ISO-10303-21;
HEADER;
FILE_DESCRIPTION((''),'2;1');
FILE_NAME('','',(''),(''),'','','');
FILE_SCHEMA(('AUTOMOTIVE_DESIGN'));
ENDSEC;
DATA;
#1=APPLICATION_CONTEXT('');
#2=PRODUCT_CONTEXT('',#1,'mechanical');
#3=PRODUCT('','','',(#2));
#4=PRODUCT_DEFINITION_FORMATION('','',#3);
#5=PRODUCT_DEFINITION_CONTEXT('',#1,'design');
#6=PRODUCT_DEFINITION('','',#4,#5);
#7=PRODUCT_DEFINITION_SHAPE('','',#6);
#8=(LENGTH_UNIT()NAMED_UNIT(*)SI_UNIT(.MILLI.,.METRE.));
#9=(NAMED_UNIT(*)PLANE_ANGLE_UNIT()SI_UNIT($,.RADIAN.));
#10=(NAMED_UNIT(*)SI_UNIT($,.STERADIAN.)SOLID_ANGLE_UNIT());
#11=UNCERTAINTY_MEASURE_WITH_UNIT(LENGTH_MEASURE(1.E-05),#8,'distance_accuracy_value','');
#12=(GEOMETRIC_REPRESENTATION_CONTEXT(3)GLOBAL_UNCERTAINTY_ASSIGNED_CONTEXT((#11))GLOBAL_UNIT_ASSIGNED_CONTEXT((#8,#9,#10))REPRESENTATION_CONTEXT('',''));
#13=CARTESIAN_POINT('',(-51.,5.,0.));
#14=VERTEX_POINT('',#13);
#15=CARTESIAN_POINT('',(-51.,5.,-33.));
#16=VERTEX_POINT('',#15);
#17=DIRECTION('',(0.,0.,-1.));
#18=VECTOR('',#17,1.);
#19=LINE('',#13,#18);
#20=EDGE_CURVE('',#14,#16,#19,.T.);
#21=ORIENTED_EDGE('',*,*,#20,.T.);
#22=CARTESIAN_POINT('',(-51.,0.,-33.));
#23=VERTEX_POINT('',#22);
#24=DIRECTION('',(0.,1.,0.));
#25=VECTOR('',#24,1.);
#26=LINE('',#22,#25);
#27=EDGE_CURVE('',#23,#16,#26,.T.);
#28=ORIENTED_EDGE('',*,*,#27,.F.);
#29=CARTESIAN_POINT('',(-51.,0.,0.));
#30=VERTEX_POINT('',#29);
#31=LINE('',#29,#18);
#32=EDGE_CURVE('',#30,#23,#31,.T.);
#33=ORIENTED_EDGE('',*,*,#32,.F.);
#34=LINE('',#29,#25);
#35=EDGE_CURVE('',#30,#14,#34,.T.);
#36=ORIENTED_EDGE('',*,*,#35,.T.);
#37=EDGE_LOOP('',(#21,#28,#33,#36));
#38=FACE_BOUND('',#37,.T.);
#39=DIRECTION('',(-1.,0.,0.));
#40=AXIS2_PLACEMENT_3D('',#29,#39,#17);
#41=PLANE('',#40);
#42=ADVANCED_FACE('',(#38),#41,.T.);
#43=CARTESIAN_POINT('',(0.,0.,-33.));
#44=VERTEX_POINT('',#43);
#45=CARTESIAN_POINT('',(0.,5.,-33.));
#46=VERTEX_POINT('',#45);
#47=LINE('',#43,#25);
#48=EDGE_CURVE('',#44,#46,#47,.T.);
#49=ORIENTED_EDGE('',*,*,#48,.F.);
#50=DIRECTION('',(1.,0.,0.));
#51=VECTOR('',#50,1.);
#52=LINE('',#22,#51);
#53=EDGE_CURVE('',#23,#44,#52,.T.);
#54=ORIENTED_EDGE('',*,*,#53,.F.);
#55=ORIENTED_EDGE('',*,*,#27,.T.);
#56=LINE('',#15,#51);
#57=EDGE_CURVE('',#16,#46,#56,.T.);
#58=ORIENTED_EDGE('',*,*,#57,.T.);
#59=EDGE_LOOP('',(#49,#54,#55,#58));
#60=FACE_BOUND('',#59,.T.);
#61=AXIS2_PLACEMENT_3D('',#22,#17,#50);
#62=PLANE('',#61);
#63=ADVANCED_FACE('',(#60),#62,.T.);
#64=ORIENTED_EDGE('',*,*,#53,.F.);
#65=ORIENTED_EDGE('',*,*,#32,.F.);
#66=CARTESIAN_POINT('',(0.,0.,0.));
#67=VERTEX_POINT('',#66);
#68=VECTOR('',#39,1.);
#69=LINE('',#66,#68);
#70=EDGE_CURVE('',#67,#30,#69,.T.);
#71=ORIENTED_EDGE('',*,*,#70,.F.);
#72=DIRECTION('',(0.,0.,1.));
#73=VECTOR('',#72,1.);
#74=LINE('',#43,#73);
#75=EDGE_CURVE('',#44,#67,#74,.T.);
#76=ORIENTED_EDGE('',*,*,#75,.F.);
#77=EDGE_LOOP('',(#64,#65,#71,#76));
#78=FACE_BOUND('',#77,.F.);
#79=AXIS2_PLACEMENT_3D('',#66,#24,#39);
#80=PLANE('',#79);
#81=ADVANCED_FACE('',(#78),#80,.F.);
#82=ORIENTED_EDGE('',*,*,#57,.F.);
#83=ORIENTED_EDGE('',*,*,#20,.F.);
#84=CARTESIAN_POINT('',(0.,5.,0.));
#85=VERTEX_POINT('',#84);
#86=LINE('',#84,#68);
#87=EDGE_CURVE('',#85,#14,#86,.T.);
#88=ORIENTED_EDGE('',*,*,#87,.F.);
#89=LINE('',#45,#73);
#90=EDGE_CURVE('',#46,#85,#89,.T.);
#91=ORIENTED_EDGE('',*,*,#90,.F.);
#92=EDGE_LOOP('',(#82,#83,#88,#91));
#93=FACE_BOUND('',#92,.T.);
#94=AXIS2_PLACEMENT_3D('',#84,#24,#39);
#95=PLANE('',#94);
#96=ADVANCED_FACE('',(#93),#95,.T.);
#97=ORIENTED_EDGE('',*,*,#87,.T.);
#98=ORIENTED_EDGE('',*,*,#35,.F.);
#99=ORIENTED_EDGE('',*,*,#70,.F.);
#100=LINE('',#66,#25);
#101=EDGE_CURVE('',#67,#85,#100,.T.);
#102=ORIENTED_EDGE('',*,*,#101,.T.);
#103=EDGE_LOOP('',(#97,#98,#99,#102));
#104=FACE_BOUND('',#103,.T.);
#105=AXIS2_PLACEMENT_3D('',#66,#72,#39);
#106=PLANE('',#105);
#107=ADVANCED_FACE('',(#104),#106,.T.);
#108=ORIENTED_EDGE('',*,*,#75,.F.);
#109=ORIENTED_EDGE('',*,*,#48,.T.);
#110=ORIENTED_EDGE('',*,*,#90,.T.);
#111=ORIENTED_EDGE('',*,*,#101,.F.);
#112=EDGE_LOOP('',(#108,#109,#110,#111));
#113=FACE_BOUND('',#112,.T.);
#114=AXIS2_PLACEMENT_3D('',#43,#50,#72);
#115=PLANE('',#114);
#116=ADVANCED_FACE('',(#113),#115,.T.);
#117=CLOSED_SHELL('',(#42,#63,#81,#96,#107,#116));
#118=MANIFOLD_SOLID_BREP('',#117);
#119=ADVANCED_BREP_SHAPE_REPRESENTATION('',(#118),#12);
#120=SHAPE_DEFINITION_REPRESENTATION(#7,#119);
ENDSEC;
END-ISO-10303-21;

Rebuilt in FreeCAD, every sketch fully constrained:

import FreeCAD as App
import Part
import Sketcher
from FreeCAD import Vector


def add_polygon(sketch, points):
    """Adds a closed chain of lines whose ends are joined by coincident constraints."""
    first, n = sketch.GeometryCount, len(points)
    for a, b in zip(points, points[1:] + points[:1]):
        sketch.addGeometry(Part.LineSegment(App.Vector(*a, 0), App.Vector(*b, 0)), False)
    for i in range(n):
        sketch.addConstraint(Sketcher.Constraint("Coincident", first + i, 2, first + (i + 1) % n, 1))

doc = App.newDocument("Part")
params = doc.addObject("Spreadsheet::Sheet", "Params")
for row, (alias, value) in enumerate([
    ("sketch1_width", "51 mm"),
    ("sketch1_height", "33 mm"),
    ("pad1_length", "5 mm"),
], start=1):
    params.set(f"A{row}", alias)
    params.set(f"B{row}", "=" + value)
    params.setAlias(f"B{row}", alias)

body = doc.addObject("PartDesign::Body", "Body")

# Sketch on XZ plane
sketch1 = doc.addObject("Sketcher::SketchObject", "Sketch")
body.addObject(sketch1)
sketch1.AttachmentSupport = (doc.XZ_Plane, [""])
sketch1.MapMode = "FlatFace"
add_polygon(sketch1, [(-51, 0), (0, 0), (0, -33), (-51, -33)])  # lines 0-3
sketch1.addConstraint([
    Sketcher.Constraint("Horizontal", 0),
    Sketcher.Constraint("Vertical", 1),
    Sketcher.Constraint("Horizontal", 2),
    Sketcher.Constraint("Vertical", 3),
    Sketcher.Constraint("Coincident", 0, 2, -1, 1),
    Sketcher.Constraint("DistanceX", 0, 1, 0, 2, 51.0),
    Sketcher.Constraint("DistanceY", 1, 2, 1, 1, 33.0),
])
sketch1.setExpression("Constraints[9]", "Params.sketch1_width")
sketch1.setExpression("Constraints[10]", "Params.sketch1_height")
pad1 = doc.addObject("PartDesign::Pad", "Pad")
body.addObject(pad1)
pad1.Profile = sketch1
pad1.setExpression("Length", "Params.pad1_length")
pad1.Reversed = True

doc.recompute()
